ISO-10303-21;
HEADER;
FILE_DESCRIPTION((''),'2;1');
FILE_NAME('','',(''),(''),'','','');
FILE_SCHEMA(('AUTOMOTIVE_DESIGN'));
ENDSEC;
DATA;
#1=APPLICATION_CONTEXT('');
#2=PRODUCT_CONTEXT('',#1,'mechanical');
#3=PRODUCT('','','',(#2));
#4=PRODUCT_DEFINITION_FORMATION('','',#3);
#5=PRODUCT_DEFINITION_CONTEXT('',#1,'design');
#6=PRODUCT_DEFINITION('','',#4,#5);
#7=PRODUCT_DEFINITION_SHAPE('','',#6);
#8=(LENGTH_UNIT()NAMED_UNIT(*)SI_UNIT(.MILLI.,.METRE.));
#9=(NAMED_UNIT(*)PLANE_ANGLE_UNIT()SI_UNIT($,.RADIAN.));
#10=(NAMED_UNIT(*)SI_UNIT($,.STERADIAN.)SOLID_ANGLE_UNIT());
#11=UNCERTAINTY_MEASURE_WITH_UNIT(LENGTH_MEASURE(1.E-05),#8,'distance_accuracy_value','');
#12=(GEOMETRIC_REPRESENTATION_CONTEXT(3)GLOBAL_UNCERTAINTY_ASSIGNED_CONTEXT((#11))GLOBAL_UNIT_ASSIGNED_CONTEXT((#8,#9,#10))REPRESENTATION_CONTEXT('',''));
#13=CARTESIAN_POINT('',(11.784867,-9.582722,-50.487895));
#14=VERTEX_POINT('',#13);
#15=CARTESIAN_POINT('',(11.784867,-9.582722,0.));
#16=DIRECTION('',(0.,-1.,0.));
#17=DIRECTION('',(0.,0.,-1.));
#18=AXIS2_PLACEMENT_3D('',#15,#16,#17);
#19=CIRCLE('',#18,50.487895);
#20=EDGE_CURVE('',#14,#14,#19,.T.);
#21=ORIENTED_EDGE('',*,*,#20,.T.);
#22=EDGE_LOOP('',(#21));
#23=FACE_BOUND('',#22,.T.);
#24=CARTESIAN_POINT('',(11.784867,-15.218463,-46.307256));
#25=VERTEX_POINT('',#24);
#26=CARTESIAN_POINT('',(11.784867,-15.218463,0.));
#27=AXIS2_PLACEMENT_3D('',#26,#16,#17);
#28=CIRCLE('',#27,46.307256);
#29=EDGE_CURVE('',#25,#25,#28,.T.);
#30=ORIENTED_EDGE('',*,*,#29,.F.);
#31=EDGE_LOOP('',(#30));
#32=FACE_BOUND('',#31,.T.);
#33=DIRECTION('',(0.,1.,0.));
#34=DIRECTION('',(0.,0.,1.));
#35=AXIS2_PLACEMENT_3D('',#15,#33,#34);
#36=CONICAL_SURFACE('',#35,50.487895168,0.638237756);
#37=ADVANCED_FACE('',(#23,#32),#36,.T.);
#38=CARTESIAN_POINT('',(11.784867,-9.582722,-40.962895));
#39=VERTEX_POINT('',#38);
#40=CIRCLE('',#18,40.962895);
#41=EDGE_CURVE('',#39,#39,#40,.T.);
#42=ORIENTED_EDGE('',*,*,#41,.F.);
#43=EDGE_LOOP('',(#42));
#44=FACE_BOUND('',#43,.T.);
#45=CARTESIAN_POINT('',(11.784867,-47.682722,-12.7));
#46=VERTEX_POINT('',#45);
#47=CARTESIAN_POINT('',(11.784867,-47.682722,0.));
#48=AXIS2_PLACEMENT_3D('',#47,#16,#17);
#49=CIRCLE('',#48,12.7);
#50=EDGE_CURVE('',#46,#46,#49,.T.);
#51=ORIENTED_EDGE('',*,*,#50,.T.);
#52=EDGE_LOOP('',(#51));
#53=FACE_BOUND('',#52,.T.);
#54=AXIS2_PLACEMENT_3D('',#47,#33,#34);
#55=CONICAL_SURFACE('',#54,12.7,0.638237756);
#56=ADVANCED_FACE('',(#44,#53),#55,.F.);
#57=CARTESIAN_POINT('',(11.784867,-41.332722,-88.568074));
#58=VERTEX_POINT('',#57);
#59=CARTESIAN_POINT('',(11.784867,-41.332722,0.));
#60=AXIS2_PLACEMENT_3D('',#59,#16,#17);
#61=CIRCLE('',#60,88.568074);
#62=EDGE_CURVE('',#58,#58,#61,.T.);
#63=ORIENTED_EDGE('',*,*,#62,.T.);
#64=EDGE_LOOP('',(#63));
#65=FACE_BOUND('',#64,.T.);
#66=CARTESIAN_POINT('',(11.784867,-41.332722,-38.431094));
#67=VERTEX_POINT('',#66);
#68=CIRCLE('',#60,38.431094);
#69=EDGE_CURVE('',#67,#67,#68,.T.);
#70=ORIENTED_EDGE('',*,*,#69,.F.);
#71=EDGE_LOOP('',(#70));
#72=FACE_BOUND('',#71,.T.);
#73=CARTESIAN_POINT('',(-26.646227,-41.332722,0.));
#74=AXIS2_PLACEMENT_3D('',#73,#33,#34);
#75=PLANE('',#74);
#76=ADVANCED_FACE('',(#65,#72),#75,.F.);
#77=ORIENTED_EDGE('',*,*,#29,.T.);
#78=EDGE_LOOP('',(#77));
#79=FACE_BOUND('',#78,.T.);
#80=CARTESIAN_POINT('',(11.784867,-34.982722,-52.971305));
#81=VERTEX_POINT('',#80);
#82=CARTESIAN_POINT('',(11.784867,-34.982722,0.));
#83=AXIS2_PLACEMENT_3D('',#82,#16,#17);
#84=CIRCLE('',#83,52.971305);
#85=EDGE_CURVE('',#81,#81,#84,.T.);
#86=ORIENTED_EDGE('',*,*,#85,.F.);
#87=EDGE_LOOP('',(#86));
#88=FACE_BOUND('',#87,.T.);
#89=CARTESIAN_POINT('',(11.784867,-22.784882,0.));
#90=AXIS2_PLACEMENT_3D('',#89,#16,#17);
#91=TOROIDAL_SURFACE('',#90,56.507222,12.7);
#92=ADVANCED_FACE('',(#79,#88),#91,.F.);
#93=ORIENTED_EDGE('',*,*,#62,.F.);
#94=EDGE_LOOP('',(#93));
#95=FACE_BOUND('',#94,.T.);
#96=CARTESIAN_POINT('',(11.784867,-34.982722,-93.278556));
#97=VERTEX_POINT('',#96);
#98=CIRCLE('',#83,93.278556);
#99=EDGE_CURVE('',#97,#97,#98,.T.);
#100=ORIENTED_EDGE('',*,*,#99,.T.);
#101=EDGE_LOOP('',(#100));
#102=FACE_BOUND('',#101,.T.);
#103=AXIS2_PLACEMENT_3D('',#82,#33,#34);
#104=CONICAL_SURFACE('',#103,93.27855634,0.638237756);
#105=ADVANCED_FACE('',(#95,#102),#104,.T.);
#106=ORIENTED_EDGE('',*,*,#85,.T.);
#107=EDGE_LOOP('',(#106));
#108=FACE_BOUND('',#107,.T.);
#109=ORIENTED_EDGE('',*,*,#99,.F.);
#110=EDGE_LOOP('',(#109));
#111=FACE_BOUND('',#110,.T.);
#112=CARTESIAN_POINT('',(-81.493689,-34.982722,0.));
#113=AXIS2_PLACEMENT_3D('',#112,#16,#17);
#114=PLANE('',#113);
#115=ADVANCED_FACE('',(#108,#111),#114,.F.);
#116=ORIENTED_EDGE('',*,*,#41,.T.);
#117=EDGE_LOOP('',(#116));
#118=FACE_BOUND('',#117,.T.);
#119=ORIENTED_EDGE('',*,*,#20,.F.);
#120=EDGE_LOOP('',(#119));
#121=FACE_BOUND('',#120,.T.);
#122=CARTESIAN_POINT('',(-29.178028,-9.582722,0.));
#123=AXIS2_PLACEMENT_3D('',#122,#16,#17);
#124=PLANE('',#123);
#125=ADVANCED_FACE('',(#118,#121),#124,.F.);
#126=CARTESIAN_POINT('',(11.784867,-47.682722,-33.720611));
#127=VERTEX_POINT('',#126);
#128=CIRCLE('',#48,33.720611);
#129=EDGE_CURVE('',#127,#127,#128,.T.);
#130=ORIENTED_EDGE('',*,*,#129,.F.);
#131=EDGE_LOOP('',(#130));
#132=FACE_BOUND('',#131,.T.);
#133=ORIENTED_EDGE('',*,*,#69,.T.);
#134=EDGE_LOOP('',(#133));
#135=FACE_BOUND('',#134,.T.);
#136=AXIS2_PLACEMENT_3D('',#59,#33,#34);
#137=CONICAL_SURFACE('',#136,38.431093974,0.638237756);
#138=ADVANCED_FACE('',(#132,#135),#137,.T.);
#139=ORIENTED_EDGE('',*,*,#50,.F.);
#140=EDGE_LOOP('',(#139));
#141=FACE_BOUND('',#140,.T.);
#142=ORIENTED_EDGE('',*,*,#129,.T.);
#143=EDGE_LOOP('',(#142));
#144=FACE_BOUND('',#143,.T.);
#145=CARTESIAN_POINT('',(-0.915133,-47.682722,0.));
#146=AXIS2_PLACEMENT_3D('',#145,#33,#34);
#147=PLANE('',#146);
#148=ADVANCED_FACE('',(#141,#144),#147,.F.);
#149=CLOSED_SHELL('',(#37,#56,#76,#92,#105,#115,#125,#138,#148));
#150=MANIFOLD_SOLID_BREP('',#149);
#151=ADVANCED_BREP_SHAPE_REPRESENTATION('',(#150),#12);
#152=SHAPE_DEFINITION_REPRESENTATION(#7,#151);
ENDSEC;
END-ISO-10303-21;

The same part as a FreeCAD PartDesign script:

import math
import FreeCAD as App
import Part
import Sketcher
Q = App.Units.Quantity

doc = App.newDocument("Part")
body = doc.addObject("PartDesign::Body", "Body")

sketch1 = doc.addObject("Sketcher::SketchObject", "Sketch")
body.addObject(sketch1)
sketch1.AttachmentSupport = (doc.XY_Plane, [""])
sketch1.MapMode = "FlatFace"
sketch1.addGeometry([
    Part.LineSegment(App.Vector(-22, -48, 0), App.Vector(-1, -48, 0)),
    Part.LineSegment(App.Vector(-1, -48, 0), App.Vector(-29, -10, 0)),
    Part.LineSegment(App.Vector(-29, -10, 0), App.Vector(-39, -10, 0)),
    Part.LineSegment(App.Vector(-39, -10, 0), App.Vector(-35, -15, 0)),
    Part.ArcOfCircle(Part.Circle(App.Vector(-45, -23, 0), App.Vector(0, 0, 1), 13), math.radians(-74), math.radians(37)),
    Part.LineSegment(App.Vector(-41, -35, 0), App.Vector(-81, -35, 0)),
    Part.LineSegment(App.Vector(-81, -35, 0), App.Vector(-77, -41, 0)),
    Part.LineSegment(App.Vector(-77, -41, 0), App.Vector(-27, -41, 0)),
    Part.LineSegment(App.Vector(-27, -41, 0), App.Vector(-22, -48, 0)),
], False)
sketch1.addGeometry(Part.LineSegment(App.Vector(12, -48, 0), App.Vector(12, -10, 0)), True)
sketch1.addConstraint([
    Sketcher.Constraint("Coincident", 0, 2, 1, 1),
    Sketcher.Constraint("Coincident", 1, 2, 2, 1),
    Sketcher.Constraint("Coincident", 2, 2, 3, 1),
    Sketcher.Constraint("Tangent", 3, 2, 4, 2),
    Sketcher.Constraint("Coincident", 4, 1, 5, 1),
    Sketcher.Constraint("Coincident", 5, 2, 6, 1),
    Sketcher.Constraint("Coincident", 6, 2, 7, 1),
    Sketcher.Constraint("Coincident", 7, 2, 8, 1),
    Sketcher.Constraint("Coincident", 8, 2, 0, 1),
    Sketcher.Constraint("Horizontal", 0),
    Sketcher.Constraint("Horizontal", 2),
    Sketcher.Constraint("Horizontal", 5),
    Sketcher.Constraint("Horizontal", 7),
    Sketcher.Constraint("Vertical", 9),
    Sketcher.Constraint("Parallel", 1, 3),
    Sketcher.Constraint("Parallel", 3, 6),
    Sketcher.Constraint("Parallel", 6, 8),
    Sketcher.Constraint("Horizontal", 8, 2, 9, 1),
    Sketcher.Constraint("Horizontal", 2, 2, 9, 2),
    Sketcher.Constraint("Equal", 6, 8),
    Sketcher.Constraint("Radius", 4, Q("0.5 in")),
    Sketcher.Constraint("DistanceY", 9, 1, 9, 2, Q("1.5 in")),
    Sketcher.Constraint("DistanceY", 4, 1, 2, 2, Q("1 in")),
    Sketcher.Constraint("DistanceX", 0, 2, 9, 1, Q("0.5 in")),
    Sketcher.Constraint("DistanceX", 2, 2, 2, 1, Q("0.375 in")),
    Sketcher.Constraint("Distance", 6, Q("7.906399 mm")),
    Sketcher.Constraint("DistanceX", 0, 1, 0, 2, Q("21.020611 mm")),
    Sketcher.Constraint("DistanceX", 5, 2, 5, 1, Q("40.307251 mm")),
    Sketcher.Constraint("DistanceX", 7, 1, 7, 2, Q("50.13698 mm")),
    Sketcher.Constraint("DistanceX", 1, 2, -1, 1, Q("29.178028 mm")),
    Sketcher.Constraint("DistanceY", 4, 3, -1, 1, Q("22.784882 mm")),
])
revolution = doc.addObject("PartDesign::Revolution", "Revolution")
body.addObject(revolution)
revolution.Profile = sketch1
revolution.ReferenceAxis = (sketch1, ["Axis0"])
revolution.Angle = 360

doc.recompute()
